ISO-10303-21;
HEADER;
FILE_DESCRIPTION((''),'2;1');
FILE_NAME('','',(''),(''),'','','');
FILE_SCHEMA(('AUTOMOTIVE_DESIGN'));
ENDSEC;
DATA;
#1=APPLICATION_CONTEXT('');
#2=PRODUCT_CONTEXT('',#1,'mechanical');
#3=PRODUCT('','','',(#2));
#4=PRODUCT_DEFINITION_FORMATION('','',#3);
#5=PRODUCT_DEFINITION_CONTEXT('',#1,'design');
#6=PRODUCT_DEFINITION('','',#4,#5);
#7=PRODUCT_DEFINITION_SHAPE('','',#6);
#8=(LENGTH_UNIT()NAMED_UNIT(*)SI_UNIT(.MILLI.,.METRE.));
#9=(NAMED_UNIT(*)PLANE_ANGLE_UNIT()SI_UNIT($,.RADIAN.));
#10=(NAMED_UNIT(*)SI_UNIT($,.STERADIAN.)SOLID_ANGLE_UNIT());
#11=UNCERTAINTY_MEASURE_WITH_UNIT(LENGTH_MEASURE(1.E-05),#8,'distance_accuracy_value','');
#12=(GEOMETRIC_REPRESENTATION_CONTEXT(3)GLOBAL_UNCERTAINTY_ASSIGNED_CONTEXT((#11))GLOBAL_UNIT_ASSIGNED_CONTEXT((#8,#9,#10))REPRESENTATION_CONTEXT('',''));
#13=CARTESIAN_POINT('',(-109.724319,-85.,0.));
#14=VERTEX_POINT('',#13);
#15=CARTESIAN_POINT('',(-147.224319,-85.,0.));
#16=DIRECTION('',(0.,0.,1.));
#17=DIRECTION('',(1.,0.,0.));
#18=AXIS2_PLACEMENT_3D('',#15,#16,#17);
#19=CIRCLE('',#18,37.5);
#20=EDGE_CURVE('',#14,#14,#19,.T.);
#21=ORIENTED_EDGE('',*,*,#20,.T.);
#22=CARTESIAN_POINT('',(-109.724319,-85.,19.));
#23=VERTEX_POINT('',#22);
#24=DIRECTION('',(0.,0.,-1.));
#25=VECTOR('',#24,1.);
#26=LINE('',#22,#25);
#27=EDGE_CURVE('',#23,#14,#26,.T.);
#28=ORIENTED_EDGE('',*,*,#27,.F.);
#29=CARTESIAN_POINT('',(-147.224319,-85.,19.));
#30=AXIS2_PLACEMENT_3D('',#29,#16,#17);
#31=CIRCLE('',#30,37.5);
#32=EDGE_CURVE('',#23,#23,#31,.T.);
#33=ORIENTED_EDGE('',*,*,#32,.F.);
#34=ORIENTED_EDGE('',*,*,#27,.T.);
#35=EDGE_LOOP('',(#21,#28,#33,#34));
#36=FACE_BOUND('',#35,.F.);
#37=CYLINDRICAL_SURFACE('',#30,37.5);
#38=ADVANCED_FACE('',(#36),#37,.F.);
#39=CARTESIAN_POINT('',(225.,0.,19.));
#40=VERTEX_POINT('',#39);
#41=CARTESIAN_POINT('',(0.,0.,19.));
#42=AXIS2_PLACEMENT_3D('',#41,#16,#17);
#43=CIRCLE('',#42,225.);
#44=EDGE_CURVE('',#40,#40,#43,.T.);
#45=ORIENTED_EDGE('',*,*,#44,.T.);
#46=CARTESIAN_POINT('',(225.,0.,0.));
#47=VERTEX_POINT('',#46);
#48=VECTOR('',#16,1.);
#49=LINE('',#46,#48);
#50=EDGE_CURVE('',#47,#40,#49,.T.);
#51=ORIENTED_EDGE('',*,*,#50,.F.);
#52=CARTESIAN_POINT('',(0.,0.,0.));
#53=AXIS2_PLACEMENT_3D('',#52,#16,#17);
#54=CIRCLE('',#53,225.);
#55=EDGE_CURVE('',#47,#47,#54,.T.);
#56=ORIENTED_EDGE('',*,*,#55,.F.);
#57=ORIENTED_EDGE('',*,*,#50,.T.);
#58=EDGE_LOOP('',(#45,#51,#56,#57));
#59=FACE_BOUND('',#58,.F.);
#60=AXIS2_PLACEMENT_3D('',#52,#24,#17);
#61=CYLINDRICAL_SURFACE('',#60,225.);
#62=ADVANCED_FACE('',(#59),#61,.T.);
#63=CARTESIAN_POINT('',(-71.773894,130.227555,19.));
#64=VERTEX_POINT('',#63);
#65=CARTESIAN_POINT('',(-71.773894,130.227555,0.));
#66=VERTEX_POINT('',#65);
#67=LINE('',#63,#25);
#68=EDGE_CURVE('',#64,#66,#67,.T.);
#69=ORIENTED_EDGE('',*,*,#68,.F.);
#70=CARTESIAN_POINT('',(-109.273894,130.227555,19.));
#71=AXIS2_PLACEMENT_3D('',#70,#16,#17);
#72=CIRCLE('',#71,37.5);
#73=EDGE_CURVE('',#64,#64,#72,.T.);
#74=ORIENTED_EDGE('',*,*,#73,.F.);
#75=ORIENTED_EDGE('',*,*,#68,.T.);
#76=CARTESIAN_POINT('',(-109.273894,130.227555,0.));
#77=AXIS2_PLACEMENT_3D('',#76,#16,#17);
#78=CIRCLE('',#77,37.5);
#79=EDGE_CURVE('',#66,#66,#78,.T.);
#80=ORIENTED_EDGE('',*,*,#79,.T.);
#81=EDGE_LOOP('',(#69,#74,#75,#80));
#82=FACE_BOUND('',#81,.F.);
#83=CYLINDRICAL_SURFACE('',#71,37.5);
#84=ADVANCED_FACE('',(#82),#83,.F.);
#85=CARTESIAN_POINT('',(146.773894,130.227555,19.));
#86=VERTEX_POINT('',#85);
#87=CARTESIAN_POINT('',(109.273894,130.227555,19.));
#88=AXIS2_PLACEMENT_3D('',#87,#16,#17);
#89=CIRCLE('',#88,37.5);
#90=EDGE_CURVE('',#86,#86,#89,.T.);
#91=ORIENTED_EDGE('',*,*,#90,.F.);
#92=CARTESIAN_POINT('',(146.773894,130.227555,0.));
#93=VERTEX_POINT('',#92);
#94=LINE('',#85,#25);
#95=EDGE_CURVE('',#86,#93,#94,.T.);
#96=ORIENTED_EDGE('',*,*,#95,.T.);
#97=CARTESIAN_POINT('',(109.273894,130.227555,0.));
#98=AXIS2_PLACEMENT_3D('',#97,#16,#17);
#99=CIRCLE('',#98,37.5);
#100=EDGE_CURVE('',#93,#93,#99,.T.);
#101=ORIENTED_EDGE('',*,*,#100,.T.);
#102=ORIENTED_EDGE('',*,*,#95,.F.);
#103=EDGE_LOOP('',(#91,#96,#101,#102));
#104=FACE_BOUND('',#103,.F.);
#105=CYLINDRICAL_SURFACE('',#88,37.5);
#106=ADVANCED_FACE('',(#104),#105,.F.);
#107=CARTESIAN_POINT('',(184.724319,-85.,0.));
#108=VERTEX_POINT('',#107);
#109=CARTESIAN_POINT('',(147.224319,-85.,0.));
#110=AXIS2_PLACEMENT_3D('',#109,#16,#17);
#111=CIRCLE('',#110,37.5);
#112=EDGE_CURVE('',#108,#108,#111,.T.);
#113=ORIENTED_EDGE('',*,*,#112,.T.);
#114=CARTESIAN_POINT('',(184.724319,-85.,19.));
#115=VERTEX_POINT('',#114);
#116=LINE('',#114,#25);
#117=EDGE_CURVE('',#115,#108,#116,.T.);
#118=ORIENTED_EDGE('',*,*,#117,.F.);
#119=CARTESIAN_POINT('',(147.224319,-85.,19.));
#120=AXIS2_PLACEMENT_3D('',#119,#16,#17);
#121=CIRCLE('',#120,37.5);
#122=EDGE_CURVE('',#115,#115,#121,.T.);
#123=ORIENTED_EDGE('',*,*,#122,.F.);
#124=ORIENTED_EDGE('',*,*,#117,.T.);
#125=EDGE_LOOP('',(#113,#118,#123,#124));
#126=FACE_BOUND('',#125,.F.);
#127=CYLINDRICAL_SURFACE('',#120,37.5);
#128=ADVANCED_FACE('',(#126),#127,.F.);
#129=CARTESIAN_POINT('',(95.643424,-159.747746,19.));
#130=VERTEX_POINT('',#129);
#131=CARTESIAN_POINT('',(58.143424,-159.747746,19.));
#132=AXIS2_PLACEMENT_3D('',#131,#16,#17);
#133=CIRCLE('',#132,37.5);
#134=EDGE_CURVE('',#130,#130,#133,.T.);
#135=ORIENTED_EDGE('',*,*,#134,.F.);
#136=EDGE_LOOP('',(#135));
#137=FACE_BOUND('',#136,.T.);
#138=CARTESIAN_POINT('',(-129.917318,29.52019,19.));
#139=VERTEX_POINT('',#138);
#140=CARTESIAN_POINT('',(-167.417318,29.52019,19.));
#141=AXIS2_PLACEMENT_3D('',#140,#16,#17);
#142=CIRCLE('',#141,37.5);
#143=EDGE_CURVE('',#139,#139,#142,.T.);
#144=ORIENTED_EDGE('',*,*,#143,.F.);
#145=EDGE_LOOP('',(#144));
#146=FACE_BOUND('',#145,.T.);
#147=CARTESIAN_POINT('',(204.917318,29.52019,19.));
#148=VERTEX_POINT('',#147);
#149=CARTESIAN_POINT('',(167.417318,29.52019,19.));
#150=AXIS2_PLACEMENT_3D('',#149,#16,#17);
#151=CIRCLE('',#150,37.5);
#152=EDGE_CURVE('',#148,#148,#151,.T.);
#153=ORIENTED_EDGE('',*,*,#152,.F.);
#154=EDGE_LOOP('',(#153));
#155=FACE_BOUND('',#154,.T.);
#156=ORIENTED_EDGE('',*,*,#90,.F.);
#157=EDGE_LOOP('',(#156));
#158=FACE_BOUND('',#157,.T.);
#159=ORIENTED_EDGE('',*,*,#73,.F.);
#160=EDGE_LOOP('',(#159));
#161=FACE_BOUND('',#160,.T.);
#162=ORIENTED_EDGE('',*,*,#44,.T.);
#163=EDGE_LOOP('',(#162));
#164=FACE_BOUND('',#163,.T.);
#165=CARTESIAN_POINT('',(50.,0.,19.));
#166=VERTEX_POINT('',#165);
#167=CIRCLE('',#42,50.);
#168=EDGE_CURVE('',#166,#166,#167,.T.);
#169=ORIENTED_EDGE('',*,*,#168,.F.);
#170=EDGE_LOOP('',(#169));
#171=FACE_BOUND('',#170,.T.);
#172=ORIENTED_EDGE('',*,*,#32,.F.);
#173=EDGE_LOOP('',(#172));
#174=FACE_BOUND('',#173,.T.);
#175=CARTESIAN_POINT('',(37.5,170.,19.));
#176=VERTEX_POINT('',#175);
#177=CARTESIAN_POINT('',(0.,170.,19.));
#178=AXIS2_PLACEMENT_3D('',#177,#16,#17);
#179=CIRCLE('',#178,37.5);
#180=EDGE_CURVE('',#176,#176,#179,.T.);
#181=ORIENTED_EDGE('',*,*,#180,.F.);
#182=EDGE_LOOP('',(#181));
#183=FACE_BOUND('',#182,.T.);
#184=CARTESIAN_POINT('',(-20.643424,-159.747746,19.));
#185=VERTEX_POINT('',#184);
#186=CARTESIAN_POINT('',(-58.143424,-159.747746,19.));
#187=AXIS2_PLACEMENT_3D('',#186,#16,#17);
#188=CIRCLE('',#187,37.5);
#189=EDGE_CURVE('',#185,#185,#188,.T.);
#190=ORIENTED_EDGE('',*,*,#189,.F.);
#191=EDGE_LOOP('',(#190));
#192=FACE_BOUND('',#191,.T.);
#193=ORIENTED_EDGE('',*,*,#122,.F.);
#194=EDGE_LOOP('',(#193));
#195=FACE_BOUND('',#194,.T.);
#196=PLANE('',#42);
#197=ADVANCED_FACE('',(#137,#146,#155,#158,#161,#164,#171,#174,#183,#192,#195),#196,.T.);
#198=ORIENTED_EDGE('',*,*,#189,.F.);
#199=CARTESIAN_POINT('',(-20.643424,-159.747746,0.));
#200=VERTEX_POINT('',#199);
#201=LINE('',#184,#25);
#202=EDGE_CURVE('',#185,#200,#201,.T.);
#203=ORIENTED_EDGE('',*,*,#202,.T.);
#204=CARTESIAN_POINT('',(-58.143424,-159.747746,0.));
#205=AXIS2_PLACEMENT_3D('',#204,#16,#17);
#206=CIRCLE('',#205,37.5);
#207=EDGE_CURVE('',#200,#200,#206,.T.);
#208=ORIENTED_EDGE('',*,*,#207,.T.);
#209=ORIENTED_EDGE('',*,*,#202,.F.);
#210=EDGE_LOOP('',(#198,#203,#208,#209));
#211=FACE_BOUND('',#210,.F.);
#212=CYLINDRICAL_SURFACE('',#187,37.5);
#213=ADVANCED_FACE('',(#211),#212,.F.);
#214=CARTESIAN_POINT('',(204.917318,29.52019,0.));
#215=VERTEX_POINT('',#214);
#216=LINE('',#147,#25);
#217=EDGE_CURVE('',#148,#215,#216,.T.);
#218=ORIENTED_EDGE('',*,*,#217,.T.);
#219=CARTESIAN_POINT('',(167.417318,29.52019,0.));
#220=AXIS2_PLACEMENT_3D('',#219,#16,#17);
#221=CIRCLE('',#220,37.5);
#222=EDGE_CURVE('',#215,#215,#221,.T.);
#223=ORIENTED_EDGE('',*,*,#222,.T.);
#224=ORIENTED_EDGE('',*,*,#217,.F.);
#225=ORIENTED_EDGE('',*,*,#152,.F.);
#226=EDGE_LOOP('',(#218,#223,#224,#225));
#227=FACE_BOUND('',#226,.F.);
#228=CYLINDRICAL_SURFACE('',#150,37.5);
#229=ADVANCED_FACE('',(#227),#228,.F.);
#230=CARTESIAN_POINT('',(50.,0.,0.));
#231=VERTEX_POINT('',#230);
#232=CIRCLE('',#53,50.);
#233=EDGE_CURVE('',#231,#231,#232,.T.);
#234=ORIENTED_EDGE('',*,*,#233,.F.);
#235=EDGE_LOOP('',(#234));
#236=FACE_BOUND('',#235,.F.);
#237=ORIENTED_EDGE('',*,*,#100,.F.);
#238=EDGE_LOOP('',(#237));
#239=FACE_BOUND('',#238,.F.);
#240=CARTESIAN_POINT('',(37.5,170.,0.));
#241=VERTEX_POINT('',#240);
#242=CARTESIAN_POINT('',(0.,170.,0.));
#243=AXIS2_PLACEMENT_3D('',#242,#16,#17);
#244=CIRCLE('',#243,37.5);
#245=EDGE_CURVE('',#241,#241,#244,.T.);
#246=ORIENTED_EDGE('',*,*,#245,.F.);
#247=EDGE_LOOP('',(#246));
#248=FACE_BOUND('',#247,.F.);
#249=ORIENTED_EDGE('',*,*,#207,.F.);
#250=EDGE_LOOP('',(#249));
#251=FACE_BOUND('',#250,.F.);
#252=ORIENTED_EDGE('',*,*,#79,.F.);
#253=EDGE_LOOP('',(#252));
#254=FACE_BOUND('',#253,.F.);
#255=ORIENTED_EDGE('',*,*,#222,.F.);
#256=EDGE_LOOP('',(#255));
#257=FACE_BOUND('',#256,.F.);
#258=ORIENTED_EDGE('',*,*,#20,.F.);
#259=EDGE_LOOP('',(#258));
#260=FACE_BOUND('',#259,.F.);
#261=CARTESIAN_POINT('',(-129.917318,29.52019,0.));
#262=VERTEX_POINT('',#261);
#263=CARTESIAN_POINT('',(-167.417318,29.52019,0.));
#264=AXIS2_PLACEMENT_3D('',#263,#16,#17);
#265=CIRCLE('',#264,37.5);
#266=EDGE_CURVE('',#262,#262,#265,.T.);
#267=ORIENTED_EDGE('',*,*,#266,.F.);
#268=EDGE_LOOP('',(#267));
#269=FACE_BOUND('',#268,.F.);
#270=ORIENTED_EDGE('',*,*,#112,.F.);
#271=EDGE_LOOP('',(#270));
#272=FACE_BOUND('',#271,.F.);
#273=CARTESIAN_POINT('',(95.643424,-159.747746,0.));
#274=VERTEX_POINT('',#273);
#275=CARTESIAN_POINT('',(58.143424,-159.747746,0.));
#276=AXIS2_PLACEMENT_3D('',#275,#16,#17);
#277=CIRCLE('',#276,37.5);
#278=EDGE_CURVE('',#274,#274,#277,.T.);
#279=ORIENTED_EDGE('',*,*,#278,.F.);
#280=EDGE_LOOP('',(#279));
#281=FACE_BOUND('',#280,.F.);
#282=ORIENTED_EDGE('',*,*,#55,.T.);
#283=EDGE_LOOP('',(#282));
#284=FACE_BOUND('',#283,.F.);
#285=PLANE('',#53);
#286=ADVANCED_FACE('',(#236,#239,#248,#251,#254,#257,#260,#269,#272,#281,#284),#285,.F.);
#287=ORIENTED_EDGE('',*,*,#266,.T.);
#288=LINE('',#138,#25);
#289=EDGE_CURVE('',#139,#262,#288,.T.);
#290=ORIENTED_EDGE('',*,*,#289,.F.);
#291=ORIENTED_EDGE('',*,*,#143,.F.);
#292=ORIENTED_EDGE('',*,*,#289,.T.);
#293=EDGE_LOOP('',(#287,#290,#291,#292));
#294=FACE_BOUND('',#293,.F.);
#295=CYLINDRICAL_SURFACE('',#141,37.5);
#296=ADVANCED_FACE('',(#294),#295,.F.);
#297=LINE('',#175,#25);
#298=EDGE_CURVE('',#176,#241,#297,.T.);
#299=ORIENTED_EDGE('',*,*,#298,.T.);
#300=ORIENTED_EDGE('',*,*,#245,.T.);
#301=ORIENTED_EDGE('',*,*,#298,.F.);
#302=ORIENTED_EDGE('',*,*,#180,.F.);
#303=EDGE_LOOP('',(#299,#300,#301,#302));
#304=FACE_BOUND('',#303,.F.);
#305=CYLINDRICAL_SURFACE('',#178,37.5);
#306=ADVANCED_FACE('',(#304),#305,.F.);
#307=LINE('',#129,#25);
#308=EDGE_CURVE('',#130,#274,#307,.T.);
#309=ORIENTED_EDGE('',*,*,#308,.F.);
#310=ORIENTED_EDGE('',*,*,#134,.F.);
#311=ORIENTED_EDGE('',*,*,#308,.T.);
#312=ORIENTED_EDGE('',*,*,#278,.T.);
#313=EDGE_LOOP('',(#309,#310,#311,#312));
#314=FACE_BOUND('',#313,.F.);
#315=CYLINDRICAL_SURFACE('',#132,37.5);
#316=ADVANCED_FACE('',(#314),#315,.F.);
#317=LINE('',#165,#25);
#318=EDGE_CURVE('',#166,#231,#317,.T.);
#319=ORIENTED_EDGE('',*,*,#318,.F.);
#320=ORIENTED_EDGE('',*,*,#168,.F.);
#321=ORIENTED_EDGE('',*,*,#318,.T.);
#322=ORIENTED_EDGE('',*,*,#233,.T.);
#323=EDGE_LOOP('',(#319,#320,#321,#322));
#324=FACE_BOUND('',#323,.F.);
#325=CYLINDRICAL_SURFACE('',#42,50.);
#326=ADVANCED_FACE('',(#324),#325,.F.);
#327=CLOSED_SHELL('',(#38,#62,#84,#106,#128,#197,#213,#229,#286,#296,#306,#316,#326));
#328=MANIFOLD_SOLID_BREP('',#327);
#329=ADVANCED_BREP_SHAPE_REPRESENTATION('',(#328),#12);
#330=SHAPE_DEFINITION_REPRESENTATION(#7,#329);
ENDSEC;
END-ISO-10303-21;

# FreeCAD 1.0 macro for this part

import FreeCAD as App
import Part
import Sketcher
from FreeCAD import Vector
Q = App.Units.Quantity

doc = App.newDocument("Part")
body = doc.addObject("PartDesign::Body", "Body")

# Sketch on XY plane
sketch1 = body.newObject("Sketcher::SketchObject", "Sketch")
sketch1.AttachmentSupport = (doc.getObject("XY_Plane"), [""])
sketch1.MapMode = "FlatFace"
sketch1.addGeometry(Part.Circle(Vector(0, 0, 0), Vector(0, 0, 1), 225), False)
sketch1.addConstraint(Sketcher.Constraint("Coincident", 0, 3, -1, 1))
sketch1.addConstraint(Sketcher.Constraint("Diameter", 0, Q("450 mm")))
pad1 = body.newObject("PartDesign::Pad", "Pad")
pad1.Profile = sketch1
pad1.Length = 19

# Sketch on XY plane
sketch2 = body.newObject("Sketcher::SketchObject", "Sketch001")
sketch2.AttachmentSupport = (doc.getObject("XY_Plane"), [""])
sketch2.MapMode = "FlatFace"
sketch2.AttachmentOffset = App.Placement(Vector(0, 0, 19), App.Rotation())
sketch2.addGeometry(Part.Circle(Vector(0, 0, 0), Vector(0, 0, 1), 50), False)
sketch2.addGeometry(Part.Circle(Vector(0, 170, 0), Vector(0, 0, 1), 38), False)
sketch2.addGeometry(Part.Circle(Vector(-109, 130, 0), Vector(0, 0, 1), 38), False)
sketch2.addGeometry(Part.Circle(Vector(-167, 30, 0), Vector(0, 0, 1), 38), False)
sketch2.addGeometry(Part.Circle(Vector(-147, -85, 0), Vector(0, 0, 1), 38), False)
sketch2.addGeometry(Part.Circle(Vector(-58, -160, 0), Vector(0, 0, 1), 38), False)
sketch2.addGeometry(Part.Circle(Vector(58, -160, 0), Vector(0, 0, 1), 38), False)
sketch2.addGeometry(Part.Circle(Vector(147, -85, 0), Vector(0, 0, 1), 38), False)
sketch2.addGeometry(Part.Circle(Vector(167, 30, 0), Vector(0, 0, 1), 38), False)
sketch2.addGeometry(Part.Circle(Vector(109, 130, 0), Vector(0, 0, 1), 38), False)
sketch2.addConstraint(Sketcher.Constraint("Coincident", 0, 3, -1, 1))
sketch2.addConstraint(Sketcher.Constraint("Equal", 1, 2))
sketch2.addConstraint(Sketcher.Constraint("Equal", 2, 3))
sketch2.addConstraint(Sketcher.Constraint("Equal", 3, 4))
sketch2.addConstraint(Sketcher.Constraint("Equal", 4, 5))
sketch2.addConstraint(Sketcher.Constraint("Equal", 5, 6))
sketch2.addConstraint(Sketcher.Constraint("Equal", 6, 7))
sketch2.addConstraint(Sketcher.Constraint("Equal", 7, 8))
sketch2.addConstraint(Sketcher.Constraint("Equal", 8, 9))
sketch2.addConstraint(Sketcher.Constraint("Symmetric", 5, 3, 6, 3, -2))
sketch2.addConstraint(Sketcher.Constraint("Symmetric", 4, 3, 7, 3, -2))
sketch2.addConstraint(Sketcher.Constraint("Symmetric", 3, 3, 8, 3, -2))
sketch2.addConstraint(Sketcher.Constraint("Symmetric", 2, 3, 9, 3, -2))
sketch2.addConstraint(Sketcher.Constraint("PointOnObject", 1, 3, -2))
sketch2.addConstraint(Sketcher.Constraint("Diameter", 0, Q("100 mm")))
sketch2.addConstraint(Sketcher.Constraint("Diameter", 1, Q("75 mm")))
sketch2.addConstraint(Sketcher.Constraint("DistanceY", -1, 1, 1, 3, Q("170 mm")))
sketch2.addConstraint(Sketcher.Constraint("DistanceY", 4, 3, -1, 1, Q("85 mm")))
sketch2.addConstraint(Sketcher.Constraint("DistanceX", 3, 3, 4, 3, Q("20.192999 mm")))
sketch2.addConstraint(Sketcher.Constraint("DistanceY", 5, 3, 2, 3, Q("289.975301 mm")))
sketch2.addConstraint(Sketcher.Constraint("DistanceX", 3, 3, -1, 1, Q("167.417318 mm")))
sketch2.addConstraint(Sketcher.Constraint("DistanceY", -1, 1, 3, 3, Q("29.52019 mm")))
sketch2.addConstraint(Sketcher.Constraint("DistanceX", 2, 3, 5, 3, Q("51.13047 mm")))
sketch2.addConstraint(Sketcher.Constraint("DistanceX", 5, 3, 6, 3, Q("116.286848 mm")))
sketch2.addConstraint(Sketcher.Constraint("DistanceY", -1, 1, 2, 3, Q("130.227555 mm")))
pocket1 = body.newObject("PartDesign::Pocket", "Pocket")
pocket1.Profile = sketch2
pocket1.Length = 53

doc.recompute()
